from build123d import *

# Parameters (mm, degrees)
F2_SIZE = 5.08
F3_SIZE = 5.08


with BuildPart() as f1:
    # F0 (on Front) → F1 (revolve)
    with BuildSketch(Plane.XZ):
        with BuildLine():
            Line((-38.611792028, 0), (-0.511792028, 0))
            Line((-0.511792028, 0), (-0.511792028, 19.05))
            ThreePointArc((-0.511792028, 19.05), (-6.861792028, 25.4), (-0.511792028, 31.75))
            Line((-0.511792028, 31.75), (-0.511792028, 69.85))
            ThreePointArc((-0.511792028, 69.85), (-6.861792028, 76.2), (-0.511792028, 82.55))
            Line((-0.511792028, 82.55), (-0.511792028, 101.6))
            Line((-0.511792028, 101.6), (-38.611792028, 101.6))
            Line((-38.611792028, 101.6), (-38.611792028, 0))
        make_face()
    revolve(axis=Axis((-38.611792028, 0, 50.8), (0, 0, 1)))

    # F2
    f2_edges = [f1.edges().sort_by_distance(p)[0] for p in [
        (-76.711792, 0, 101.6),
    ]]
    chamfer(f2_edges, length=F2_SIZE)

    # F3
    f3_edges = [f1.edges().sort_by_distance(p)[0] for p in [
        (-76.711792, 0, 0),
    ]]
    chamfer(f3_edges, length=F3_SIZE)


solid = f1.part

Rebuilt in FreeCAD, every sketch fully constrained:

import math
import FreeCAD as App
import Part
import Sketcher
from FreeCAD import Vector
Q = App.Units.Quantity


def edges_at(feature, points):
    """Names of the edges that pass closest to the given points."""
    edges = feature.Shape.Edges
    near = lambda p: min(range(len(edges)), key=lambda i: edges[i].distToShape(Part.Vertex(*p))[0])
    return sorted({f"Edge{near(p) + 1}" for p in points})

doc = App.newDocument("Part")
body = doc.addObject("PartDesign::Body", "Body")

# Sketch on XZ plane
sketch1 = body.newObject("Sketcher::SketchObject", "Sketch")
sketch1.AttachmentSupport = (doc.getObject("XZ_Plane"), [""])
sketch1.MapMode = "FlatFace"
sketch1.addGeometry(Part.LineSegment(Vector(-39, 0, 0), Vector(-1, 0, 0)), False)
sketch1.addGeometry(Part.LineSegment(Vector(-1, 0, 0), Vector(-1, 19, 0)), False)
sketch1.addGeometry(Part.ArcOfCircle(Part.Circle(Vector(-1, 25, 0), Vector(0, 0, 1), 6), math.radians(90), math.radians(270)), False)
sketch1.addGeometry(Part.LineSegment(Vector(-1, 32, 0), Vector(-1, 70, 0)), False)
sketch1.addGeometry(Part.ArcOfCircle(Part.Circle(Vector(-1, 76, 0), Vector(0, 0, 1), 6), math.radians(90), math.radians(270)), False)
sketch1.addGeometry(Part.LineSegment(Vector(-1, 83, 0), Vector(-1, 102, 0)), False)
sketch1.addGeometry(Part.LineSegment(Vector(-1, 102, 0), Vector(-39, 102, 0)), False)
sketch1.addGeometry(Part.LineSegment(Vector(-39, 102, 0), Vector(-39, 0, 0)), False)
sketch1.addGeometry(Part.LineSegment(Vector(-39, 0, 0), Vector(-39, 102, 0)), True)  # axis
sketch1.addConstraint(Sketcher.Constraint("Coincident", 0, 2, 1, 1))
sketch1.addConstraint(Sketcher.Constraint("Coincident", 1, 2, 2, 2))
sketch1.addConstraint(Sketcher.Constraint("Coincident", 2, 1, 3, 1))
sketch1.addConstraint(Sketcher.Constraint("Coincident", 3, 2, 4, 2))
sketch1.addConstraint(Sketcher.Constraint("Coincident", 4, 1, 5, 1))
sketch1.addConstraint(Sketcher.Constraint("Coincident", 5, 2, 6, 1))
sketch1.addConstraint(Sketcher.Constraint("Coincident", 6, 2, 7, 1))
sketch1.addConstraint(Sketcher.Constraint("Coincident", 7, 2, 0, 1))
sketch1.addConstraint(Sketcher.Constraint("Horizontal", 0))
sketch1.addConstraint(Sketcher.Constraint("Vertical", 1))
sketch1.addConstraint(Sketcher.Constraint("Vertical", 3))
sketch1.addConstraint(Sketcher.Constraint("Vertical", 5))
sketch1.addConstraint(Sketcher.Constraint("Horizontal", 6))
sketch1.addConstraint(Sketcher.Constraint("Vertical", 7))
sketch1.addConstraint(Sketcher.Constraint("Vertical", 8))
sketch1.addConstraint(Sketcher.Constraint("Coincident", 8, 1, 7, 2))
sketch1.addConstraint(Sketcher.Constraint("Equal", 2, 4))
sketch1.addConstraint(Sketcher.Constraint("PointOnObject", 0, 2, -1))
sketch1.addConstraint(Sketcher.Constraint("Horizontal", 5, 2, 8, 2))
sketch1.addConstraint(Sketcher.Constraint("Vertical", 2, 3, 4, 3))
sketch1.addConstraint(Sketcher.Constraint("Vertical", 4, 3, 0, 2))
sketch1.addConstraint(Sketcher.Constraint("Vertical", 1, 2, 2, 1))
sketch1.addConstraint(Sketcher.Constraint("Vertical", 3, 2, 4, 1))
sketch1.addConstraint(Sketcher.Constraint("Equal", 6, 3))
sketch1.addConstraint(Sketcher.Constraint("Equal", 1, 5))
sketch1.addConstraint(Sketcher.Constraint("DistanceY", 7, 2, 7, 1, Q("4 in")))
sketch1.addConstraint(Sketcher.Constraint("Radius", 2, Q("0.25 in")))
sketch1.addConstraint(Sketcher.Constraint("DistanceX", 0, 1, 0, 2, Q("1.5 in")))
sketch1.addConstraint(Sketcher.Constraint("DistanceX", 2, 3, -1, 1, Q("0.511792 mm")))
revolution = body.newObject("PartDesign::Revolution", "Revolution")
revolution.Profile = sketch1
revolution.ReferenceAxis = (sketch1, ["Axis0"])
revolution.Angle = 360
doc.recompute()

chamfer = body.newObject("PartDesign::Chamfer", "Chamfer")
chamfer.Base = (revolution, edges_at(revolution, [(-76.712, 0, 101.6)]))
chamfer.Size = Q("0.2 in")
doc.recompute()

chamfer2 = body.newObject("PartDesign::Chamfer", "Chamfer001")
chamfer2.Base = (chamfer, edges_at(chamfer, [(-76.712, 0, 0)]))
chamfer2.Size = Q("0.2 in")

doc.recompute()
